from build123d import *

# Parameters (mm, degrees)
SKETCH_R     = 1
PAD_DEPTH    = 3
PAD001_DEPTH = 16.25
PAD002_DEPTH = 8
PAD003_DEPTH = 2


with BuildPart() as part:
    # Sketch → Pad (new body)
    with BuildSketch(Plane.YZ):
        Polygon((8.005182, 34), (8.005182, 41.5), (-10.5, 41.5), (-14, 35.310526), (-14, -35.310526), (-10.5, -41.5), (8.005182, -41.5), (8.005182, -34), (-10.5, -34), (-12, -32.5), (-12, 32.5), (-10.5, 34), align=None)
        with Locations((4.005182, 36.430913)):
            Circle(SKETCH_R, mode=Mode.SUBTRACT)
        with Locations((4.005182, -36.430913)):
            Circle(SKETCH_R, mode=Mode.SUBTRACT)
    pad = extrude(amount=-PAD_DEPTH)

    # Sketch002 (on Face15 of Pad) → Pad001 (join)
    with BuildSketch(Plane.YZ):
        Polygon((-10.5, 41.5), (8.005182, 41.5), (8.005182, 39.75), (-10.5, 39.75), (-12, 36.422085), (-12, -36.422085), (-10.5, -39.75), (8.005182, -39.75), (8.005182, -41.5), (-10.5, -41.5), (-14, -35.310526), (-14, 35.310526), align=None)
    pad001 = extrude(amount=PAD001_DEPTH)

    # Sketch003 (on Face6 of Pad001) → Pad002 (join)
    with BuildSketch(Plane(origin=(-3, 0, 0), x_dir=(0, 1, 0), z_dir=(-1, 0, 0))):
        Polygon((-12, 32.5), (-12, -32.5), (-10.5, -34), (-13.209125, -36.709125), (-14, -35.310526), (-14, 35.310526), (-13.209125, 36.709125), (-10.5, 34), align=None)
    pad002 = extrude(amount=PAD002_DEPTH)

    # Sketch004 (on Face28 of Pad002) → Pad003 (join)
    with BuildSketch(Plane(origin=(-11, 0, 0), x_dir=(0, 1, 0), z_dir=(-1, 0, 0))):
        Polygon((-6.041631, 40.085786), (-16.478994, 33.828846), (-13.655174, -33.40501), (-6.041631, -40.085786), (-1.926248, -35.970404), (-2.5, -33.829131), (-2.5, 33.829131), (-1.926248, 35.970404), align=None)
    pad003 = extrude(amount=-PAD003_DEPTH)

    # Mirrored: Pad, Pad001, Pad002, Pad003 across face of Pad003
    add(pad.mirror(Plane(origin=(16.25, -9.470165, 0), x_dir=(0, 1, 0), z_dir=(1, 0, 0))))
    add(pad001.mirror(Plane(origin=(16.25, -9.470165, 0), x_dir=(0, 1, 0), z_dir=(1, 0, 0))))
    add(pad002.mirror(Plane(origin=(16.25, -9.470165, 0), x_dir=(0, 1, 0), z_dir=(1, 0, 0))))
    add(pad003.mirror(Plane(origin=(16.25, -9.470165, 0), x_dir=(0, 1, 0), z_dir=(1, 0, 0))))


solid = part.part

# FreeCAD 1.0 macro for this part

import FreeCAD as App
import Part
import Sketcher

V = App.Vector
Q = App.Units.Quantity

doc = App.newDocument("Part")
params = doc.addObject("Spreadsheet::Sheet", "Params")
for row, (alias, value) in enumerate([
    ("sketch1_diameter", "2 mm"),
    ("sketch1_height", "65 mm"),
    ("sketch1_height2", "7.5 mm"),
    ("pad1_length", "3 mm"),
    ("sketch2_height", "1.75 mm"),
    ("pad2_length", "16.25 mm"),
    ("sketch3_height", "65 mm"),
    ("pad3_length", "8 mm"),
    ("pad4_length", "2 mm"),
], start=1):
    params.set(f"A{row}", alias)
    params.set(f"B{row}", "=" + value)
    params.setAlias(f"B{row}", alias)

body = doc.addObject("PartDesign::Body", "Body")

sketch1 = doc.addObject("Sketcher::SketchObject", "Sketch")
body.addObject(sketch1)
sketch1.AttachmentSupport = (doc.YZ_Plane, [""])
sketch1.MapMode = "FlatFace"
sketch1.addGeometry([
    Part.LineSegment(V(8.005182, 34, 0), V(8.005182, 41.5, 0)),
    Part.LineSegment(V(8.005182, 41.5, 0), V(-10.5, 41.5, 0)),
    Part.LineSegment(V(-10.5, 41.5, 0), V(-14, 35.310526, 0)),
    Part.LineSegment(V(-14, 35.310526, 0), V(-14, -35.310526, 0)),
    Part.LineSegment(V(-14, -35.310526, 0), V(-10.5, -41.5, 0)),
    Part.LineSegment(V(-10.5, -41.5, 0), V(8.005182, -41.5, 0)),
    Part.LineSegment(V(8.005182, -41.5, 0), V(8.005182, -34, 0)),
    Part.LineSegment(V(8.005182, -34, 0), V(-10.5, -34, 0)),
    Part.LineSegment(V(-10.5, -34, 0), V(-12, -32.5, 0)),
    Part.LineSegment(V(-12, -32.5, 0), V(-12, 32.5, 0)),
    Part.LineSegment(V(-12, 32.5, 0), V(-10.5, 34, 0)),
    Part.LineSegment(V(-10.5, 34, 0), V(8.005182, 34, 0)),
    Part.Circle(V(4.005182, -36.430913, 0), V(0, 0, 1), 1),
    Part.Circle(V(4.005182, 36.430913, 0), V(0, 0, 1), 1),
], False)
sketch1.addConstraint([
    Sketcher.Constraint("Coincident", 0, 2, 1, 1),
    Sketcher.Constraint("Coincident", 1, 2, 2, 1),
    Sketcher.Constraint("Coincident", 2, 2, 3, 1),
    Sketcher.Constraint("Coincident", 3, 2, 4, 1),
    Sketcher.Constraint("Coincident", 4, 2, 5, 1),
    Sketcher.Constraint("Coincident", 5, 2, 6, 1),
    Sketcher.Constraint("Coincident", 6, 2, 7, 1),
    Sketcher.Constraint("Coincident", 7, 2, 8, 1),
    Sketcher.Constraint("Coincident", 8, 2, 9, 1),
    Sketcher.Constraint("Coincident", 9, 2, 10, 1),
    Sketcher.Constraint("Coincident", 10, 2, 11, 1),
    Sketcher.Constraint("Coincident", 11, 2, 0, 1),
    Sketcher.Constraint("Vertical", 0),
    Sketcher.Constraint("Horizontal", 1),
    Sketcher.Constraint("Vertical", 3),
    Sketcher.Constraint("Horizontal", 5),
    Sketcher.Constraint("Vertical", 6),
    Sketcher.Constraint("Horizontal", 7),
    Sketcher.Constraint("Vertical", 9),
    Sketcher.Constraint("Horizontal", 11),
    Sketcher.Constraint("Equal", 12, 13),
    Sketcher.Constraint("Symmetric", 12, 3, 13, 3, -1),
    Sketcher.Constraint("Symmetric", 1, 2, 4, 2, -1),
    Sketcher.Constraint("Symmetric", 7, 2, 10, 2, -1),
    Sketcher.Constraint("Perpendicular", 8, 10),
    Sketcher.Constraint("Vertical", 0, 2, 5, 2),
    Sketcher.Constraint("Vertical", 4, 2, 7, 2),
    Sketcher.Constraint("Equal", 2, 4),
    Sketcher.Constraint("Equal", 8, 10),
    Sketcher.Constraint("Diameter", 12, Q("2 mm")),
    Sketcher.Constraint("DistanceY", 9, 1, 9, 2, Q("65 mm")),
    Sketcher.Constraint("DistanceY", 0, 1, 0, 2, Q("7.5 mm")),
    Sketcher.Constraint("DistanceX", 2, 2, -1, 1, Q("14 mm")),
    Sketcher.Constraint("DistanceY", 6, 2, -1, 1, Q("34 mm")),
    Sketcher.Constraint("DistanceX", 8, 2, -1, 1, Q("12 mm")),
    Sketcher.Constraint("DistanceX", 13, 3, 0, 2, Q("4 mm")),
    Sketcher.Constraint("DistanceX", 1, 2, 1, 1, Q("18.505182 mm")),
    Sketcher.Constraint("DistanceY", 3, 2, 3, 1, Q("70.621052 mm")),
    Sketcher.Constraint("DistanceY", 12, 3, 2, 2, Q("71.741439 mm")),
])
sketch1.setExpression("Constraints[29]", "Params.sketch1_diameter")
sketch1.setExpression("Constraints[30]", "Params.sketch1_height")
sketch1.setExpression("Constraints[31]", "Params.sketch1_height2")
pad1 = doc.addObject("PartDesign::Pad", "Pad")
body.addObject(pad1)
pad1.Profile = sketch1
pad1.setExpression("Length", "Params.pad1_length")
pad1.Reversed = True

sketch2 = doc.addObject("Sketcher::SketchObject", "Sketch001")
body.addObject(sketch2)
sketch2.AttachmentSupport = (doc.YZ_Plane, [""])
sketch2.MapMode = "FlatFace"
sketch2.addGeometry([
    Part.LineSegment(V(8.005182, 41.5, 0), V(-10.5, 41.5, 0)),
    Part.LineSegment(V(-10.5, 41.5, 0), V(-14, 35.310526, 0)),
    Part.LineSegment(V(-14, 35.310526, 0), V(-14, -35.310526, 0)),
    Part.LineSegment(V(-14, -35.310526, 0), V(-10.5, -41.5, 0)),
    Part.LineSegment(V(-10.5, -41.5, 0), V(8.005182, -41.5, 0)),
    Part.LineSegment(V(8.005182, -41.5, 0), V(8.005182, -39.75, 0)),
    Part.LineSegment(V(8.005182, -39.75, 0), V(-10.5, -39.75, 0)),
    Part.LineSegment(V(-10.5, -39.75, 0), V(-12, -36.422085, 0)),
    Part.LineSegment(V(-12, -36.422085, 0), V(-12, 36.422085, 0)),
    Part.LineSegment(V(-12, 36.422085, 0), V(-10.5, 39.75, 0)),
    Part.LineSegment(V(-10.5, 39.75, 0), V(8.005182, 39.75, 0)),
    Part.LineSegment(V(8.005182, 39.75, 0), V(8.005182, 41.5, 0)),
], False)
sketch2.addConstraint([
    Sketcher.Constraint("Coincident", 0, 2, 1, 1),
    Sketcher.Constraint("Coincident", 1, 2, 2, 1),
    Sketcher.Constraint("Coincident", 2, 2, 3, 1),
    Sketcher.Constraint("Coincident", 3, 2, 4, 1),
    Sketcher.Constraint("Coincident", 4, 2, 5, 1),
    Sketcher.Constraint("Coincident", 5, 2, 6, 1),
    Sketcher.Constraint("Coincident", 6, 2, 7, 1),
    Sketcher.Constraint("Coincident", 7, 2, 8, 1),
    Sketcher.Constraint("Coincident", 8, 2, 9, 1),
    Sketcher.Constraint("Coincident", 9, 2, 10, 1),
    Sketcher.Constraint("Coincident", 10, 2, 11, 1),
    Sketcher.Constraint("Coincident", 11, 2, 0, 1),
    Sketcher.Constraint("Horizontal", 0),
    Sketcher.Constraint("Vertical", 2),
    Sketcher.Constraint("Horizontal", 4),
    Sketcher.Constraint("Vertical", 5),
    Sketcher.Constraint("Horizontal", 6),
    Sketcher.Constraint("Vertical", 8),
    Sketcher.Constraint("Horizontal", 10),
    Sketcher.Constraint("Vertical", 11),
    Sketcher.Constraint("Symmetric", 0, 2, 3, 2, -1),
    Sketcher.Constraint("Symmetric", 6, 2, 9, 2, -1),
    Sketcher.Constraint("Vertical", 3, 2, 6, 2),
    Sketcher.Constraint("Vertical", 5, 2, 10, 2),
    Sketcher.Constraint("Equal", 1, 3),
    Sketcher.Constraint("Equal", 7, 9),
    Sketcher.Constraint("DistanceX", 1, 2, -1, 1, Q("14 mm")),
    Sketcher.Constraint("DistanceX", 7, 2, -1, 1, Q("12 mm")),
    Sketcher.Constraint("DistanceY", 3, 2, 0, 2, Q("83 mm")),
    Sketcher.Constraint("DistanceY", 5, 1, 5, 2, Q("1.75 mm")),
    Sketcher.Constraint("DistanceX", 0, 2, -1, 1, Q("10.5 mm")),
    Sketcher.Constraint("DistanceX", 0, 2, 0, 1, Q("18.505182 mm")),
    Sketcher.Constraint("DistanceY", 8, 1, 8, 2, Q("72.84417 mm")),
    Sketcher.Constraint("DistanceY", 2, 2, 2, 1, Q("70.621052 mm")),
])
sketch2.setExpression("Constraints[29]", "Params.sketch2_height")
pad2 = doc.addObject("PartDesign::Pad", "Pad001")
body.addObject(pad2)
pad2.Profile = sketch2
pad2.setExpression("Length", "Params.pad2_length")

sketch3 = doc.addObject("Sketcher::SketchObject", "Sketch002")
body.addObject(sketch3)
sketch3.AttachmentSupport = (doc.YZ_Plane, [""])
sketch3.MapMode = "FlatFace"
sketch3.AttachmentOffset = App.Placement(V(0, 0, -3), App.Rotation())
sketch3.addGeometry([
    Part.LineSegment(V(-12, 32.5, 0), V(-12, -32.5, 0)),
    Part.LineSegment(V(-12, -32.5, 0), V(-10.5, -34, 0)),
    Part.LineSegment(V(-10.5, -34, 0), V(-13.209125, -36.709125, 0)),
    Part.LineSegment(V(-13.209125, -36.709125, 0), V(-14, -35.310526, 0)),
    Part.LineSegment(V(-14, -35.310526, 0), V(-14, 35.310526, 0)),
    Part.LineSegment(V(-14, 35.310526, 0), V(-13.209125, 36.709125, 0)),
    Part.LineSegment(V(-13.209125, 36.709125, 0), V(-10.5, 34, 0)),
    Part.LineSegment(V(-10.5, 34, 0), V(-12, 32.5, 0)),
], False)
sketch3.addConstraint([
    Sketcher.Constraint("Coincident", 0, 2, 1, 1),
    Sketcher.Constraint("Coincident", 1, 2, 2, 1),
    Sketcher.Constraint("Coincident", 2, 2, 3, 1),
    Sketcher.Constraint("Coincident", 3, 2, 4, 1),
    Sketcher.Constraint("Coincident", 4, 2, 5, 1),
    Sketcher.Constraint("Coincident", 5, 2, 6, 1),
    Sketcher.Constraint("Coincident", 6, 2, 7, 1),
    Sketcher.Constraint("Coincident", 7, 2, 0, 1),
    Sketcher.Constraint("Vertical", 0),
    Sketcher.Constraint("Vertical", 4),
    Sketcher.Constraint("Symmetric", 2, 2, 5, 2, -1),
    Sketcher.Constraint("Symmetric", 1, 2, 6, 2, -1),
    Sketcher.Constraint("Perpendicular", 1, 2),
    Sketcher.Constraint("Perpendicular", 2, 6),
    Sketcher.Constraint("Perpendicular", 6, 7),
    Sketcher.Constraint("Equal", 3, 5),
    Sketcher.Constraint("DistanceY", 0, 2, 0, 1, Q("65 mm")),
    Sketcher.Constraint("DistanceX", 0, 2, -1, 1, Q("12 mm")),
    Sketcher.Constraint("DistanceY", 1, 2, -1, 1, Q("34 mm")),
    Sketcher.Constraint("DistanceX", 3, 2, -1, 1, Q("14 mm")),
    Sketcher.Constraint("DistanceY", 2, 2, 3, 2, Q("1.398599 mm")),
    Sketcher.Constraint("Distance", 2, Q("3.831281 mm")),
])
sketch3.setExpression("Constraints[16]", "Params.sketch3_height")
pad3 = doc.addObject("PartDesign::Pad", "Pad002")
body.addObject(pad3)
pad3.Profile = sketch3
pad3.setExpression("Length", "Params.pad3_length")
pad3.Reversed = True

sketch4 = doc.addObject("Sketcher::SketchObject", "Sketch003")
body.addObject(sketch4)
sketch4.AttachmentSupport = (doc.YZ_Plane, [""])
sketch4.MapMode = "FlatFace"
sketch4.AttachmentOffset = App.Placement(V(0, 0, -11), App.Rotation())
sketch4.addGeometry([
    Part.LineSegment(V(-6.041631, -40.085786, 0), V(-16.478994, -33.828846, 0)),
    Part.LineSegment(V(-16.478994, -33.828846, 0), V(-13.655174, 33.40501, 0)),
    Part.LineSegment(V(-13.655174, 33.40501, 0), V(-6.041631, 40.085786, 0)),
    Part.LineSegment(V(-6.041631, 40.085786, 0), V(-1.926248, 35.970404, 0)),
    Part.LineSegment(V(-1.926248, 35.970404, 0), V(-2.5, 33.829131, 0)),
    Part.LineSegment(V(-2.5, 33.829131, 0), V(-2.5, -33.829131, 0)),
    Part.LineSegment(V(-2.5, -33.829131, 0), V(-1.926248, -35.970404, 0)),
    Part.LineSegment(V(-1.926248, -35.970404, 0), V(-6.041631, -40.085786, 0)),
], False)
sketch4.addConstraint([
    Sketcher.Constraint("Coincident", 0, 2, 1, 1),
    Sketcher.Constraint("Coincident", 1, 2, 2, 1),
    Sketcher.Constraint("Coincident", 2, 2, 3, 1),
    Sketcher.Constraint("Coincident", 3, 2, 4, 1),
    Sketcher.Constraint("Coincident", 4, 2, 5, 1),
    Sketcher.Constraint("Coincident", 5, 2, 6, 1),
    Sketcher.Constraint("Coincident", 6, 2, 7, 1),
    Sketcher.Constraint("Coincident", 7, 2, 0, 1),
    Sketcher.Constraint("Vertical", 5),
    Sketcher.Constraint("Symmetric", 3, 2, 6, 2, -1),
    Sketcher.Constraint("Symmetric", 2, 2, 7, 2, -1),
    Sketcher.Constraint("Perpendicular", 3, 7),
    Sketcher.Constraint("Equal", 4, 6),
    Sketcher.Constraint("Angle", 4, Q("-104.999991 deg")),
    Sketcher.Constraint("DistanceX", 4, 2, -1, 1, Q("2.5 mm")),
    Sketcher.Constraint("DistanceY", 5, 2, 5, 1, Q("67.658262 mm")),
    Sketcher.Constraint("Distance", 1, Q("67.29313 mm")),
    Sketcher.Constraint("Distance", 3, Q("5.82003 mm")),
    Sketcher.Constraint("Distance", 4, Q("2.216809 mm")),
    Sketcher.Constraint("DistanceY", -1, 1, 1, 2, Q("33.40501 mm")),
    Sketcher.Constraint("DistanceX", 0, 2, 1, 2, Q("2.82382 mm")),
    Sketcher.Constraint("Distance", 0, Q("12.169135 mm")),
])
pad4 = doc.addObject("PartDesign::Pad", "Pad003")
body.addObject(pad4)
pad4.Profile = sketch4
pad4.setExpression("Length", "Params.pad4_length")
doc.recompute()

datumplane = doc.addObject("PartDesign::Plane", "DatumPlane")
body.addObject(datumplane)
datumplane.AttachmentSupport = (doc.YZ_Plane, [""])
datumplane.MapMode = "FlatFace"
datumplane.AttachmentOffset = App.Placement(V(0, 0, 16.25), App.Rotation())
mirrored = doc.addObject("PartDesign::Mirrored", "Mirrored")
body.addObject(mirrored)
mirrored.Originals = [pad1, pad2, pad3, pad4]
mirrored.MirrorPlane = (datumplane, [""])
body.Tip = mirrored

doc.recompute()
